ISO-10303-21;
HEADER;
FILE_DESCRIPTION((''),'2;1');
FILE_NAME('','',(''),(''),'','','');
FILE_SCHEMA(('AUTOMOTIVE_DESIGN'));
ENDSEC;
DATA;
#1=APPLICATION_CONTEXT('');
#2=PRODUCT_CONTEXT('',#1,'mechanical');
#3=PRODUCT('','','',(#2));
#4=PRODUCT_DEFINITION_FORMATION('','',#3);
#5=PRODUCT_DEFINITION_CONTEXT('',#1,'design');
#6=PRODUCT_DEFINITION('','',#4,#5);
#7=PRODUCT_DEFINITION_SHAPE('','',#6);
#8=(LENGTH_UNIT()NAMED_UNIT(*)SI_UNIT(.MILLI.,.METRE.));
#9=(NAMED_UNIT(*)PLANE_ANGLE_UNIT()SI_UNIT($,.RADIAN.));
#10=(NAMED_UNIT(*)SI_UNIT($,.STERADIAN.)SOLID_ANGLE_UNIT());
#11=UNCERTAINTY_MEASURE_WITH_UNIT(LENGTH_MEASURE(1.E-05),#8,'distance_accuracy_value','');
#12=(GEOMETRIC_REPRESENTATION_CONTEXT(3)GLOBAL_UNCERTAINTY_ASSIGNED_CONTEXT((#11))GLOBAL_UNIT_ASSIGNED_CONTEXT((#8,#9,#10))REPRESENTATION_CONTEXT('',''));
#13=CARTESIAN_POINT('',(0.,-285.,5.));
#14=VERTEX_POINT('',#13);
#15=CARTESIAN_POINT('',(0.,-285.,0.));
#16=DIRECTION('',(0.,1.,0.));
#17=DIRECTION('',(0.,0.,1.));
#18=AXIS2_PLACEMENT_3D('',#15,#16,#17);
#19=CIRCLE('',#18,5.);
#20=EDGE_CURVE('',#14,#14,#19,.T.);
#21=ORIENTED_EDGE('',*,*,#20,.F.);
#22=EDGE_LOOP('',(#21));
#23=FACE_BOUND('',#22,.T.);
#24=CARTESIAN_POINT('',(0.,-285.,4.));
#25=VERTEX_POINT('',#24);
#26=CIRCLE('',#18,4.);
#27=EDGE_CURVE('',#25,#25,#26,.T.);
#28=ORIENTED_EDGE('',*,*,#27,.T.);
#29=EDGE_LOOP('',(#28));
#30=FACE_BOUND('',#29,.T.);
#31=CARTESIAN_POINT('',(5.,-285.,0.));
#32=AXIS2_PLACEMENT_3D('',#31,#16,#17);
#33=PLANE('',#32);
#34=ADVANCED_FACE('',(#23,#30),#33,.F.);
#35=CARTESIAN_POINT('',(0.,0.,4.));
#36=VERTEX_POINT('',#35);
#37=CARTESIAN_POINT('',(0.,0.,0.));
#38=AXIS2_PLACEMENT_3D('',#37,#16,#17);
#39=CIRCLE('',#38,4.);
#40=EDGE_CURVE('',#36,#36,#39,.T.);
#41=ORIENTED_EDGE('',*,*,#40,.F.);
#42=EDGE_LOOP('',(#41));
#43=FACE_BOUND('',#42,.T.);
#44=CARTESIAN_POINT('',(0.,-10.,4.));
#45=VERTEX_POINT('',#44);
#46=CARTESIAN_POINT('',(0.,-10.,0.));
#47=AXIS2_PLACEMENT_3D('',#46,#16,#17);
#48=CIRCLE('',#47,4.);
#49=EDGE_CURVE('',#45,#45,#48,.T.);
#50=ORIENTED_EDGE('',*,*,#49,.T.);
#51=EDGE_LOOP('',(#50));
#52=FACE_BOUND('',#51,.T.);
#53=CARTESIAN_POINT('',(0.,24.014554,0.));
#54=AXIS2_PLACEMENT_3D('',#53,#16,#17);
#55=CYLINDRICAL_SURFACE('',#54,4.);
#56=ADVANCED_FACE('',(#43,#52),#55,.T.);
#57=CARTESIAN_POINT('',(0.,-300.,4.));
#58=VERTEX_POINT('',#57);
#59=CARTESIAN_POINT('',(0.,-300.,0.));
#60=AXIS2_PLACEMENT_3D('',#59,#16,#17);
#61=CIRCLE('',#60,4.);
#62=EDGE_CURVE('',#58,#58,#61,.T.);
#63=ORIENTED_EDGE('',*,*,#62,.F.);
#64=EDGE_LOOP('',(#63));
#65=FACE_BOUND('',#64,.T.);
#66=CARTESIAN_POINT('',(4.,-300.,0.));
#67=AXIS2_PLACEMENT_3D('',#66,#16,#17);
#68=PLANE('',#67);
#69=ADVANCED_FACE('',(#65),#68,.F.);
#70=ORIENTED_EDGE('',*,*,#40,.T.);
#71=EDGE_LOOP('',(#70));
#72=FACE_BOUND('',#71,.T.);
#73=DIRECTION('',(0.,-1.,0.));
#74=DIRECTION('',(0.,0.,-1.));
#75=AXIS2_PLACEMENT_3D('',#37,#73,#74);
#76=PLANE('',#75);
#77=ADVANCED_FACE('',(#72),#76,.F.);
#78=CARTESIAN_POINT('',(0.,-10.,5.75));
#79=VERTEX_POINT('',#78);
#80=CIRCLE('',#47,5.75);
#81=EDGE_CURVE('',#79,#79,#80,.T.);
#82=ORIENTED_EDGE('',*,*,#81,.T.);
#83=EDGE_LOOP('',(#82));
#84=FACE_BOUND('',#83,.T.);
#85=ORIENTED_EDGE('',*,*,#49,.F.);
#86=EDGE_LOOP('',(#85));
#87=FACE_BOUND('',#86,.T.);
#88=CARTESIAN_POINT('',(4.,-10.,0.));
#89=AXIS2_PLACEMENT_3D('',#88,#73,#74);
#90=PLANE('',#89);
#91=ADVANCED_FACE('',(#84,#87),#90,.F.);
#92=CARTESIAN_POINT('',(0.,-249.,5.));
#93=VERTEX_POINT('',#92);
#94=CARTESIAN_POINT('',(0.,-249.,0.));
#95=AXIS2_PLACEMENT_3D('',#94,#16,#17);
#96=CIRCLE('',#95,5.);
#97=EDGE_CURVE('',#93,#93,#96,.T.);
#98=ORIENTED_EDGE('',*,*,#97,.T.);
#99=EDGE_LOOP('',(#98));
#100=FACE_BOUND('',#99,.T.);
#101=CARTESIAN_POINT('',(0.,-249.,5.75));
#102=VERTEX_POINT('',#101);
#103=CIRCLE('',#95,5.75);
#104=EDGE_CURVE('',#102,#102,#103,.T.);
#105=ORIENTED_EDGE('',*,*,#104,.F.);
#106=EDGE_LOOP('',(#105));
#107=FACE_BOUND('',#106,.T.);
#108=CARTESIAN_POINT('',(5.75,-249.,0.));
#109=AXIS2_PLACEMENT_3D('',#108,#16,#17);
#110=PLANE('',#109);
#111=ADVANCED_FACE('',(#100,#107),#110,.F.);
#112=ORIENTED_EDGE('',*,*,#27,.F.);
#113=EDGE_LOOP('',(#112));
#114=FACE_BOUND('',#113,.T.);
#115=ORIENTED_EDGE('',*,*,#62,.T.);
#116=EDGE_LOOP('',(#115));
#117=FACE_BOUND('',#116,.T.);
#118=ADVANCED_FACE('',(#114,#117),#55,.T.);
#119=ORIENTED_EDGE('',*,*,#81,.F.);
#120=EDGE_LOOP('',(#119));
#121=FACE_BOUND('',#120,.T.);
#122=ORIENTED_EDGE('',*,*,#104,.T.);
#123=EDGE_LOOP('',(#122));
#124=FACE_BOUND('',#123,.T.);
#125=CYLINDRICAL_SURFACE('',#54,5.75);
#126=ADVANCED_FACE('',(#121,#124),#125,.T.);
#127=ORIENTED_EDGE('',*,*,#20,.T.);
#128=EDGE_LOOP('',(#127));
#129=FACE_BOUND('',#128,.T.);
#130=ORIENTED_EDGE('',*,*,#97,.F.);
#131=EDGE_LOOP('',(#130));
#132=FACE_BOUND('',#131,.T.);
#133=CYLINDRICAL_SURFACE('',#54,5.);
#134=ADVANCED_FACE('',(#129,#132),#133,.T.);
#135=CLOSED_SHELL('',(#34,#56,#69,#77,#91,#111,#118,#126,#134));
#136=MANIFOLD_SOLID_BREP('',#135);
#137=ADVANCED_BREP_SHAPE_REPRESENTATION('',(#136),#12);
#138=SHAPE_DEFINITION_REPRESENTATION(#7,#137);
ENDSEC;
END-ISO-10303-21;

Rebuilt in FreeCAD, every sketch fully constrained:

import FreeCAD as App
import Part
import Sketcher

V = App.Vector
Q = App.Units.Quantity


def add_polygon(sketch, points):
    """Adds a closed chain of lines whose ends are joined by coincident constraints."""
    first, n = sketch.GeometryCount, len(points)
    for a, b in zip(points, points[1:] + points[:1]):
        sketch.addGeometry(Part.LineSegment(App.Vector(*a, 0), App.Vector(*b, 0)), False)
    for i in range(n):
        sketch.addConstraint(Sketcher.Constraint("Coincident", first + i, 2, first + (i + 1) % n, 1))

doc = App.newDocument("Part")
body = doc.addObject("PartDesign::Body", "Body")

sketch1 = body.newObject("Sketcher::SketchObject", "Sketch")
sketch1.AttachmentSupport = (doc.getObject("XY_Plane"), [""])
sketch1.MapMode = "FlatFace"
add_polygon(sketch1, [(4, 0), (0, 0), (0, -300), (4, -300), (4, -285), (5, -285), (5, -249), (5.8, -249), (5.8, -10), (4, -10)])
sketch1.addConstraint([
    Sketcher.Constraint("Horizontal", 0),
    Sketcher.Constraint("Vertical", 1),
    Sketcher.Constraint("Horizontal", 2),
    Sketcher.Constraint("Vertical", 3),
    Sketcher.Constraint("Horizontal", 4),
    Sketcher.Constraint("Vertical", 5),
    Sketcher.Constraint("Horizontal", 6),
    Sketcher.Constraint("Vertical", 7),
    Sketcher.Constraint("Horizontal", 8),
    Sketcher.Constraint("Vertical", 9),
    Sketcher.Constraint("Coincident", 0, 2, -1, 1),
    Sketcher.Constraint("Vertical", 3, 2, 8, 2),
    Sketcher.Constraint("DistanceX", 0, 2, 0, 1, Q("4 mm")),
    Sketcher.Constraint("DistanceX", 4, 1, 4, 2, Q("1 mm")),
    Sketcher.Constraint("DistanceY", 1, 2, 1, 1, Q("300 mm")),
    Sketcher.Constraint("DistanceY", 3, 1, 3, 2, Q("15 mm")),
    Sketcher.Constraint("DistanceY", 5, 1, 5, 2, Q("36 mm")),
    Sketcher.Constraint("DistanceY", 7, 1, 7, 2, Q("239 mm")),
    Sketcher.Constraint("DistanceX", 6, 1, 6, 2, Q("0.75 mm")),
])
revolution = body.newObject("PartDesign::Revolution", "Revolution")
revolution.Profile = sketch1
revolution.ReferenceAxis = (sketch1, ["V_Axis"])
revolution.Angle = 360

doc.recompute()
